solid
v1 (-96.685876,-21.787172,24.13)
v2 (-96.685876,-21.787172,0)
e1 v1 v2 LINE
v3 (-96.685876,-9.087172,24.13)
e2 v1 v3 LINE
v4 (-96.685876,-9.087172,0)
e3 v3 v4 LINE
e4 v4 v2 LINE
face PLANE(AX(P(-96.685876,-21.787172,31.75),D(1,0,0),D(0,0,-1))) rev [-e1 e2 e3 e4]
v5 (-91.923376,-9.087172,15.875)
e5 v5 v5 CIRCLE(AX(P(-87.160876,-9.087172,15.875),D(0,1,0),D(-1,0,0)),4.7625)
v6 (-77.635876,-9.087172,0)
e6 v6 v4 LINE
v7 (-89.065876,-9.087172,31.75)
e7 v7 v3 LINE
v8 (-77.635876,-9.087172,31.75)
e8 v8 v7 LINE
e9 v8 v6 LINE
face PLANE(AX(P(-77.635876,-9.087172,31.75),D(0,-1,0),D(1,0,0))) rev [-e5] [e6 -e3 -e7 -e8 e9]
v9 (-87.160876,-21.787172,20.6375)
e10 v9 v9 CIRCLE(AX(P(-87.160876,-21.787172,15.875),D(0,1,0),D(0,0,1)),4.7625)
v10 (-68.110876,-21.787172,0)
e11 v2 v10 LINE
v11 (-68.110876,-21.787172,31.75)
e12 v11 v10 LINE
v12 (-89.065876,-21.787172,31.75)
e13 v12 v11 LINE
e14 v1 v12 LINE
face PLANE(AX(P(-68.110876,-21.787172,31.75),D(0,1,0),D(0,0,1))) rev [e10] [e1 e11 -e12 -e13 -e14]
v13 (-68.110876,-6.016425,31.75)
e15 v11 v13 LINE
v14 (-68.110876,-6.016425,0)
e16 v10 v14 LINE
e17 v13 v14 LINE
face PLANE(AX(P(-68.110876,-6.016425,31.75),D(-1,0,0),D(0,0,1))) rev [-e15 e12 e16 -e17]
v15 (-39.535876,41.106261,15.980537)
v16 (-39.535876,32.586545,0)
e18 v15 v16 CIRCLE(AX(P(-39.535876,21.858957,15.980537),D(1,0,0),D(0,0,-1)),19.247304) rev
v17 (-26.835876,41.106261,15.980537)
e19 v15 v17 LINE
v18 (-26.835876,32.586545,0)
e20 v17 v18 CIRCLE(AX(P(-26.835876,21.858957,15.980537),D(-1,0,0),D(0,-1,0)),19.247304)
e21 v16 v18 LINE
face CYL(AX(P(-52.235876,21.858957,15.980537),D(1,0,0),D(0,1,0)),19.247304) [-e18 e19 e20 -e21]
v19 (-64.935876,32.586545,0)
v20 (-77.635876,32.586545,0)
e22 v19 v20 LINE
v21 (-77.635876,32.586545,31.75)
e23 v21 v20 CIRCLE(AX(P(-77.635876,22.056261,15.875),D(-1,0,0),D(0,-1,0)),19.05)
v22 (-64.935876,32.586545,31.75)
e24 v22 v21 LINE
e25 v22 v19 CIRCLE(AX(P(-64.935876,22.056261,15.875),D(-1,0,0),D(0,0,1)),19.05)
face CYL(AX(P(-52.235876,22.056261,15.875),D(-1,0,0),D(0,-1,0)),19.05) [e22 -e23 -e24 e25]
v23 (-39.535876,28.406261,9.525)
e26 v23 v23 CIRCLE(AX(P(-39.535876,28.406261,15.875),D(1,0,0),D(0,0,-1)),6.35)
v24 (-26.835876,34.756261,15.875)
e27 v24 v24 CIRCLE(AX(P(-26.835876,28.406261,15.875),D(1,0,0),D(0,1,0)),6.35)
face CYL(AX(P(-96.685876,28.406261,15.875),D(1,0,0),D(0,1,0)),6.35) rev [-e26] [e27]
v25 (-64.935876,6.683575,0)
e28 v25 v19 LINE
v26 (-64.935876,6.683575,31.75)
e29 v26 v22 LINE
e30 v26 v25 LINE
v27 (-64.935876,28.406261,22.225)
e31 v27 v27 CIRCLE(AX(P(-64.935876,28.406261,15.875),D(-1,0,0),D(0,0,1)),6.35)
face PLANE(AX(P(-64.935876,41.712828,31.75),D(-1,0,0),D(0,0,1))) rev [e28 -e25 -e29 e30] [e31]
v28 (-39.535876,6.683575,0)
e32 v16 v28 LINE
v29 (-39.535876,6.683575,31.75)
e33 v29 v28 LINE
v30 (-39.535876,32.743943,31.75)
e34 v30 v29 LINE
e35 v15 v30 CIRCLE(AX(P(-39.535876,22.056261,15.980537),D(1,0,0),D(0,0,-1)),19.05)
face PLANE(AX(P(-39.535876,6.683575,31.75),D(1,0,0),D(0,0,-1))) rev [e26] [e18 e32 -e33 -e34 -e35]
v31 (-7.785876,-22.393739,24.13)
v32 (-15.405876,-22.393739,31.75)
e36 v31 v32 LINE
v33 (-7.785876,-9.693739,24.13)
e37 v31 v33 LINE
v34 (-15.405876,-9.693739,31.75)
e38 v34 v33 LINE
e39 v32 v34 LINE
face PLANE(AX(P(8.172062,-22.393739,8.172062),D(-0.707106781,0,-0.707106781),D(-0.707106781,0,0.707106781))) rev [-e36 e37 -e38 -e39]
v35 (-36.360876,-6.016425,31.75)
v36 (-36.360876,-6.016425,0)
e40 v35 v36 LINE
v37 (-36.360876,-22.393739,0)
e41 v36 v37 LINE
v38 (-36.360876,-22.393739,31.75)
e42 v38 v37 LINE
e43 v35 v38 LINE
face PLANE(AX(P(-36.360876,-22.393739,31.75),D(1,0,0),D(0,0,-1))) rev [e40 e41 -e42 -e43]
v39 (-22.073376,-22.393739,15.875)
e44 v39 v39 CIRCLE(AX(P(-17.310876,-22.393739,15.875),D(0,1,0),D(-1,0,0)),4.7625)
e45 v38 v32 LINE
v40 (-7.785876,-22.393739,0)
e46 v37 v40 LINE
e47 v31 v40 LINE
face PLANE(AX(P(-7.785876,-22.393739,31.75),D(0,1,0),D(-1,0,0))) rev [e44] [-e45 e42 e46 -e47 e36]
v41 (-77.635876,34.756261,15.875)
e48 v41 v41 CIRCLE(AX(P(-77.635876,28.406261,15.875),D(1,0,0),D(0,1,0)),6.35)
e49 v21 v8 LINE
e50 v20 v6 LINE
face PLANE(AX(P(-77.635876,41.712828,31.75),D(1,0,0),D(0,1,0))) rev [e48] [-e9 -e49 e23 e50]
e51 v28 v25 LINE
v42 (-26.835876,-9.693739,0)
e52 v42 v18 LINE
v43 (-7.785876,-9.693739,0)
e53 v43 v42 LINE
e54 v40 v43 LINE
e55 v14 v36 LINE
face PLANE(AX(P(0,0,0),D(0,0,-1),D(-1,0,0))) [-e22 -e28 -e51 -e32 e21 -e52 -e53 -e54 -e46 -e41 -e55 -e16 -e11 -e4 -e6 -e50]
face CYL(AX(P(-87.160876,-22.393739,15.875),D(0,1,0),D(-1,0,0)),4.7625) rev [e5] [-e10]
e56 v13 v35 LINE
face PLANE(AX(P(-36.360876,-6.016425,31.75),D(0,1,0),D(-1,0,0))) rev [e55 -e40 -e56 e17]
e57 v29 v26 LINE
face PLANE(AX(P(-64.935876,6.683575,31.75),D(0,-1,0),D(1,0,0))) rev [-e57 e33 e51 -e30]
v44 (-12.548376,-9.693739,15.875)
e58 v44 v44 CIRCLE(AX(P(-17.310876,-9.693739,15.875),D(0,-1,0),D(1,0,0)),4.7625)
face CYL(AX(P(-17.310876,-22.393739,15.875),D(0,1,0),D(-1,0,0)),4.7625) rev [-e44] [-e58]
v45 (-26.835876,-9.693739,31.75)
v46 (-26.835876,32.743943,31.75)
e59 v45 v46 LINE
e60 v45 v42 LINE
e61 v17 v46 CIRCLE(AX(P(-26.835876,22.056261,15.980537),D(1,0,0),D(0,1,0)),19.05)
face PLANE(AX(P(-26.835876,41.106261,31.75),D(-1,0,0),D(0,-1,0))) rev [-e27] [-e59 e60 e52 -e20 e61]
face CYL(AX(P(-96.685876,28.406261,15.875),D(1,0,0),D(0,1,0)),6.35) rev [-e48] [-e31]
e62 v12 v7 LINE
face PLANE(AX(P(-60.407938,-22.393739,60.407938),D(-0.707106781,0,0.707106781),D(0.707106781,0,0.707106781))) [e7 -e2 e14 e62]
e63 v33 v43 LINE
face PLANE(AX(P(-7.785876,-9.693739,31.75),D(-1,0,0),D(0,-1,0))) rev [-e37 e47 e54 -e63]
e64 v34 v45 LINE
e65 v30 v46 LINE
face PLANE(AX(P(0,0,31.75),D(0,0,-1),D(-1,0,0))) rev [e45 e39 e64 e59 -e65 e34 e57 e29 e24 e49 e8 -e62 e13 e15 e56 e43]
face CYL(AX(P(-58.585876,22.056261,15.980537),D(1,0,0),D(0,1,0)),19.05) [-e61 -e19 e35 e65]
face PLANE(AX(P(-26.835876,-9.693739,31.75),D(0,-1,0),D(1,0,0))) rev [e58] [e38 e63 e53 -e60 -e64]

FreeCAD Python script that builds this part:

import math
import FreeCAD as App
import Part
import Sketcher
Q = App.Units.Quantity

doc = App.newDocument("Part")
body = doc.addObject("PartDesign::Body", "Body")

sketch1 = body.newObject("Sketcher::SketchObject", "Sketch")
sketch1.AttachmentSupport = (doc.getObject("XY_Plane"), [""])
sketch1.MapMode = "FlatFace"
sketch1.addGeometry([
    Part.LineSegment(App.Vector(-65, 42, 0), App.Vector(-78, 42, 0)),
    Part.LineSegment(App.Vector(-78, 42, 0), App.Vector(-78, -9, 0)),
    Part.LineSegment(App.Vector(-78, -9, 0), App.Vector(-97, -9, 0)),
    Part.LineSegment(App.Vector(-97, -9, 0), App.Vector(-97, -22, 0)),
    Part.LineSegment(App.Vector(-97, -22, 0), App.Vector(-68, -22, 0)),
    Part.LineSegment(App.Vector(-68, -22, 0), App.Vector(-68, -6, 0)),
    Part.LineSegment(App.Vector(-68, -6, 0), App.Vector(-36, -6, 0)),
    Part.LineSegment(App.Vector(-36, -6, 0), App.Vector(-36, -22, 0)),
    Part.LineSegment(App.Vector(-36, -22, 0), App.Vector(-8, -22, 0)),
    Part.LineSegment(App.Vector(-8, -22, 0), App.Vector(-8, -10, 0)),
    Part.LineSegment(App.Vector(-8, -10, 0), App.Vector(-27, -10, 0)),
    Part.LineSegment(App.Vector(-27, -10, 0), App.Vector(-27, 41, 0)),
    Part.LineSegment(App.Vector(-27, 41, 0), App.Vector(-40, 41, 0)),
    Part.LineSegment(App.Vector(-40, 41, 0), App.Vector(-40, 7, 0)),
    Part.LineSegment(App.Vector(-40, 7, 0), App.Vector(-65, 7, 0)),
    Part.LineSegment(App.Vector(-65, 7, 0), App.Vector(-65, 42, 0)),
], False)
sketch1.addConstraint([
    Sketcher.Constraint("Coincident", 0, 2, 1, 1),
    Sketcher.Constraint("Coincident", 1, 2, 2, 1),
    Sketcher.Constraint("Coincident", 2, 2, 3, 1),
    Sketcher.Constraint("Coincident", 3, 2, 4, 1),
    Sketcher.Constraint("Coincident", 4, 2, 5, 1),
    Sketcher.Constraint("Coincident", 5, 2, 6, 1),
    Sketcher.Constraint("Coincident", 6, 2, 7, 1),
    Sketcher.Constraint("Coincident", 7, 2, 8, 1),
    Sketcher.Constraint("Coincident", 8, 2, 9, 1),
    Sketcher.Constraint("Coincident", 9, 2, 10, 1),
    Sketcher.Constraint("Coincident", 10, 2, 11, 1),
    Sketcher.Constraint("Coincident", 11, 2, 12, 1),
    Sketcher.Constraint("Coincident", 12, 2, 13, 1),
    Sketcher.Constraint("Coincident", 13, 2, 14, 1),
    Sketcher.Constraint("Coincident", 14, 2, 15, 1),
    Sketcher.Constraint("Coincident", 15, 2, 0, 1),
    Sketcher.Constraint("Horizontal", 0),
    Sketcher.Constraint("Vertical", 1),
    Sketcher.Constraint("Horizontal", 2),
    Sketcher.Constraint("Vertical", 3),
    Sketcher.Constraint("Horizontal", 4),
    Sketcher.Constraint("Vertical", 5),
    Sketcher.Constraint("Horizontal", 6),
    Sketcher.Constraint("Vertical", 7),
    Sketcher.Constraint("Horizontal", 8),
    Sketcher.Constraint("Vertical", 9),
    Sketcher.Constraint("Horizontal", 10),
    Sketcher.Constraint("Vertical", 11),
    Sketcher.Constraint("Horizontal", 12),
    Sketcher.Constraint("Vertical", 13),
    Sketcher.Constraint("Horizontal", 14),
    Sketcher.Constraint("Vertical", 15),
    Sketcher.Constraint("Equal", 4, 8),
    Sketcher.Constraint("Equal", 2, 10),
    Sketcher.Constraint("Equal", 0, 12),
    Sketcher.Constraint("Equal", 12, 3),
    Sketcher.Constraint("Equal", 3, 9),
    Sketcher.Constraint("Equal", 1, 11),
    Sketcher.Constraint("DistanceX", 14, 2, 14, 1, Q("1 in")),
    Sketcher.Constraint("DistanceY", 1, 2, 1, 1, Q("2 in")),
    Sketcher.Constraint("DistanceX", 0, 2, 0, 1, Q("0.5 in")),
    Sketcher.Constraint("DistanceX", 2, 2, 2, 1, Q("0.75 in")),
    Sketcher.Constraint("DistanceX", 6, 1, 6, 2, Q("1.25 in")),
    Sketcher.Constraint("DistanceY", 6, 2, 13, 2, Q("0.5 in")),
    Sketcher.Constraint("DistanceY", 5, 1, 5, 2, Q("15.770746 mm")),
    Sketcher.Constraint("DistanceY", 7, 2, 7, 1, Q("16.377313 mm")),
    Sketcher.Constraint("DistanceY", -1, 1, 0, 2, Q("41.712828 mm")),
    Sketcher.Constraint("DistanceX", 0, 2, -1, 1, Q("77.635876 mm")),
])
pad1 = body.newObject("PartDesign::Pad", "Pad")
pad1.Profile = sketch1
pad1.Length = Q("1.25 in")

sketch2 = body.newObject("Sketcher::SketchObject", "Sketch001")
sketch2.AttachmentSupport = (doc.getObject("XZ_Plane"), [""])
sketch2.MapMode = "FlatFace"
sketch2.AttachmentOffset = App.Placement(App.Vector(0, 0, 9.693739), App.Rotation())
sketch2.addGeometry([
    Part.LineSegment(App.Vector(-89, 32, 0), App.Vector(-97, 24, 0)),
    Part.LineSegment(App.Vector(-97, 24, 0), App.Vector(-97, 32, 0)),
    Part.LineSegment(App.Vector(-97, 32, 0), App.Vector(-89, 32, 0)),
    Part.LineSegment(App.Vector(-15, 32, 0), App.Vector(-8, 32, 0)),
    Part.LineSegment(App.Vector(-8, 32, 0), App.Vector(-8, 24, 0)),
    Part.LineSegment(App.Vector(-8, 24, 0), App.Vector(-15, 32, 0)),
], False)
sketch2.addConstraint([
    Sketcher.Constraint("Coincident", 0, 2, 1, 1),
    Sketcher.Constraint("Coincident", 1, 2, 2, 1),
    Sketcher.Constraint("Coincident", 2, 2, 0, 1),
    Sketcher.Constraint("Coincident", 3, 2, 4, 1),
    Sketcher.Constraint("Coincident", 4, 2, 5, 1),
    Sketcher.Constraint("Coincident", 5, 2, 3, 1),
    Sketcher.Constraint("Vertical", 1),
    Sketcher.Constraint("Horizontal", 2),
    Sketcher.Constraint("Horizontal", 3),
    Sketcher.Constraint("Vertical", 4),
    Sketcher.Constraint("Perpendicular", 0, 5),
    Sketcher.Constraint("Horizontal", 2, 2, 3, 2),
    Sketcher.Constraint("Horizontal", 0, 2, 4, 2),
    Sketcher.Constraint("Equal", 2, 3),
    Sketcher.Constraint("DistanceX", 2, 1, 2, 2, Q("0.3 in")),
    Sketcher.Constraint("DistanceX", 2, 2, 3, 2, Q("3.2 in")),
    Sketcher.Constraint("DistanceY", -1, 1, 0, 2, Q("0.95 in")),
    Sketcher.Constraint("DistanceX", 0, 2, -1, 1, Q("96.685876 mm")),
])
pocket1 = body.newObject("PartDesign::Pocket", "Pocket")
pocket1.Profile = sketch2
pocket1.Type = "ThroughAll"
pocket1.Midplane = True

sketch3 = body.newObject("Sketcher::SketchObject", "Sketch002")
sketch3.AttachmentSupport = (doc.getObject("YZ_Plane"), [""])
sketch3.MapMode = "FlatFace"
sketch3.AttachmentOffset = App.Placement(App.Vector(0, 0, -26.835876), App.Rotation())
sketch3.addGeometry(Part.Circle(App.Vector(28, 16, 0), App.Vector(0, 0, 1), 6), False)
sketch3.addConstraint([
    Sketcher.Constraint("Diameter", 0, Q("0.5 in")),
    Sketcher.Constraint("DistanceY", -1, 1, 0, 3, Q("0.625 in")),
    Sketcher.Constraint("DistanceX", -1, 1, 0, 3, Q("28.406261 mm")),
])
pocket2 = body.newObject("PartDesign::Pocket", "Pocket001")
pocket2.Profile = sketch3
pocket2.Type = "ThroughAll"

sketch4 = body.newObject("Sketcher::SketchObject", "Sketch003")
sketch4.AttachmentSupport = (doc.getObject("YZ_Plane"), [""])
sketch4.MapMode = "FlatFace"
sketch4.AttachmentOffset = App.Placement(App.Vector(0, 0, -26.835876), App.Rotation())
sketch4.addGeometry([
    Part.LineSegment(App.Vector(41, 32, 0), App.Vector(33, 32, 0)),
    Part.ArcOfCircle(Part.Circle(App.Vector(22, 16, 0), App.Vector(0, 0, 1), 19), math.radians(0), math.radians(56)),
    Part.LineSegment(App.Vector(41, 16, 0), App.Vector(41, 32, 0)),
], False)
sketch4.addConstraint([
    Sketcher.Constraint("Coincident", 0, 2, 1, 2),
    Sketcher.Constraint("Tangent", 1, 1, 2, 1),
    Sketcher.Constraint("Coincident", 2, 2, 0, 1),
    Sketcher.Constraint("Horizontal", 0),
    Sketcher.Constraint("Vertical", 2),
    Sketcher.Constraint("Radius", 1, Q("0.75 in")),
    Sketcher.Constraint("DistanceY", -1, 1, 0, 2, Q("1.25 in")),
    Sketcher.Constraint("DistanceX", 0, 2, 0, 1, Q("8.362318 mm")),
    Sketcher.Constraint("DistanceX", -1, 1, 1, 3, Q("22.056261 mm")),
])
pocket3 = body.newObject("PartDesign::Pocket", "Pocket002")
pocket3.Profile = sketch4
pocket3.Length = Q("1.25 in")

sketch5 = body.newObject("Sketcher::SketchObject", "Sketch004")
sketch5.AttachmentSupport = (doc.getObject("YZ_Plane"), [""])
sketch5.MapMode = "FlatFace"
sketch5.AttachmentOffset = App.Placement(App.Vector(0, 0, -26.835876), App.Rotation())
sketch5.addGeometry([
    Part.LineSegment(App.Vector(33, 0, 0), App.Vector(41, 0, 0)),
    Part.LineSegment(App.Vector(41, 0, 0), App.Vector(41, 16, 0)),
    Part.ArcOfCircle(Part.Circle(App.Vector(22, 16, 0), App.Vector(0, 0, 1), 19), math.radians(-56), math.radians(0)),
], False)
sketch5.addConstraint([
    Sketcher.Constraint("Coincident", 0, 2, 1, 1),
    Sketcher.Constraint("Tangent", 1, 2, 2, 2),
    Sketcher.Constraint("Coincident", 2, 1, 0, 1),
    Sketcher.Constraint("Horizontal", 0),
    Sketcher.Constraint("Vertical", 1),
    Sketcher.Constraint("PointOnObject", 0, 2, -1),
    Sketcher.Constraint("Radius", 2, Q("19.247304 mm")),
    Sketcher.Constraint("DistanceX", 0, 1, 0, 2, Q("8.519716 mm")),
    Sketcher.Constraint("DistanceX", -1, 1, 0, 2, Q("41.106261 mm")),
])
pocket4 = body.newObject("PartDesign::Pocket", "Pocket003")
pocket4.Profile = sketch5
pocket4.Length = Q("1 in")

sketch6 = body.newObject("Sketcher::SketchObject", "Sketch005")
sketch6.AttachmentSupport = (doc.getObject("YZ_Plane"), [""])
sketch6.MapMode = "FlatFace"
sketch6.AttachmentOffset = App.Placement(App.Vector(0, 0, -77.635876), App.Rotation())
sketch6.addGeometry([
    Part.LineSegment(App.Vector(41, -152, 0), App.Vector(41, 184, 0)),
    Part.LineSegment(App.Vector(41, 184, 0), App.Vector(345, 184, 0)),
    Part.LineSegment(App.Vector(345, 184, 0), App.Vector(345, -152, 0)),
    Part.LineSegment(App.Vector(345, -152, 0), App.Vector(41, -152, 0)),
], False)
sketch6.addConstraint([
    Sketcher.Constraint("Coincident", 0, 2, 1, 1),
    Sketcher.Constraint("Coincident", 1, 2, 2, 1),
    Sketcher.Constraint("Coincident", 2, 2, 3, 1),
    Sketcher.Constraint("Coincident", 3, 2, 0, 1),
    Sketcher.Constraint("Vertical", 0),
    Sketcher.Constraint("Horizontal", 1),
    Sketcher.Constraint("Vertical", 2),
    Sketcher.Constraint("Horizontal", 3),
    Sketcher.Constraint("DistanceX", 1, 1, 1, 2, Q("303.980633 mm")),
    Sketcher.Constraint("DistanceY", 0, 1, 0, 2, Q("335.730633 mm")),
    Sketcher.Constraint("DistanceX", -1, 1, 0, 2, Q("41.106261 mm")),
    Sketcher.Constraint("DistanceY", -1, 1, 0, 2, Q("183.740317 mm")),
])
pocket5 = body.newObject("PartDesign::Pocket", "Pocket004")
pocket5.Profile = sketch6
pocket5.Type = "ThroughAll"
pocket5.Midplane = True

sketch7 = body.newObject("Sketcher::SketchObject", "Sketch006")
sketch7.AttachmentSupport = (doc.getObject("YZ_Plane"), [""])
sketch7.MapMode = "FlatFace"
sketch7.AttachmentOffset = App.Placement(App.Vector(0, 0, -77.635876), App.Rotation())
sketch7.addGeometry([
    Part.LineSegment(App.Vector(41, 32, 0), App.Vector(41, 16, 0)),
    Part.ArcOfCircle(Part.Circle(App.Vector(22, 16, 0), App.Vector(0, 0, 1), 19), math.radians(0), math.radians(56)),
    Part.LineSegment(App.Vector(33, 32, 0), App.Vector(41, 32, 0)),
    Part.LineSegment(App.Vector(41, 16, 0), App.Vector(41, 0, 0)),
    Part.LineSegment(App.Vector(41, 0, 0), App.Vector(33, 0, 0)),
    Part.ArcOfCircle(Part.Circle(App.Vector(22, 16, 0), App.Vector(0, 0, 1), 19), math.radians(-56), math.radians(0)),
], False)
sketch7.addConstraint([
    Sketcher.Constraint("Tangent", 0, 2, 1, 1),
    Sketcher.Constraint("Coincident", 1, 2, 2, 1),
    Sketcher.Constraint("Coincident", 2, 2, 0, 1),
    Sketcher.Constraint("Coincident", 3, 2, 4, 1),
    Sketcher.Constraint("Coincident", 4, 2, 5, 1),
    Sketcher.Constraint("Tangent", 5, 2, 3, 1),
    Sketcher.Constraint("Vertical", 0),
    Sketcher.Constraint("Horizontal", 2),
    Sketcher.Constraint("Vertical", 3),
    Sketcher.Constraint("Horizontal", 4),
    Sketcher.Constraint("Coincident", 5, 3, 1, 3),
    Sketcher.Constraint("Equal", 1, 5),
    Sketcher.Constraint("PointOnObject", 3, 2, -1),
    Sketcher.Constraint("Vertical", 1, 2, 4, 2),
    Sketcher.Constraint("Radius", 1, Q("0.75 in")),
    Sketcher.Constraint("DistanceY", 0, 2, 0, 1, Q("0.625 in")),
    Sketcher.Constraint("DistanceX", -1, 1, 1, 3, Q("22.056261 mm")),
])
pocket6 = body.newObject("PartDesign::Pocket", "Pocket005")
pocket6.Profile = sketch7
pocket6.Length = Q("1 in")
pocket6.Reversed = True

sketch8 = body.newObject("Sketcher::SketchObject", "Sketch007")
sketch8.AttachmentSupport = (doc.getObject("XZ_Plane"), [""])
sketch8.MapMode = "FlatFace"
sketch8.AttachmentOffset = App.Placement(App.Vector(0, 0, 9.087172), App.Rotation())
sketch8.addGeometry(Part.Circle(App.Vector(-17.3, 15.9, 0), App.Vector(0, 0, 1), 4.8), False)
sketch8.addConstraint([
    Sketcher.Constraint("Diameter", 0, Q("0.375 in")),
    Sketcher.Constraint("DistanceY", -1, 1, 0, 3, Q("0.625 in")),
    Sketcher.Constraint("DistanceX", 0, 3, -1, 1, Q("17.310876 mm")),
])
pocket7 = body.newObject("PartDesign::Pocket", "Pocket006")
pocket7.Profile = sketch8
pocket7.Type = "ThroughAll"
pocket7.Reversed = True

sketch9 = body.newObject("Sketcher::SketchObject", "Sketch008")
sketch9.AttachmentSupport = (doc.getObject("XZ_Plane"), [""])
sketch9.MapMode = "FlatFace"
sketch9.AttachmentOffset = App.Placement(App.Vector(0, 0, 9.087172), App.Rotation())
sketch9.addGeometry(Part.Circle(App.Vector(-87.2, 15.9, 0), App.Vector(0, 0, 1), 4.8), False)
sketch9.addConstraint([
    Sketcher.Constraint("Diameter", 0, Q("0.375 in")),
    Sketcher.Constraint("DistanceY", -1, 1, 0, 3, Q("0.625 in")),
    Sketcher.Constraint("DistanceX", 0, 3, -1, 1, Q("87.160876 mm")),
])
pocket8 = body.newObject("PartDesign::Pocket", "Pocket007")
pocket8.Profile = sketch9
pocket8.Type = "ThroughAll"
pocket8.Reversed = True

doc.recompute()
